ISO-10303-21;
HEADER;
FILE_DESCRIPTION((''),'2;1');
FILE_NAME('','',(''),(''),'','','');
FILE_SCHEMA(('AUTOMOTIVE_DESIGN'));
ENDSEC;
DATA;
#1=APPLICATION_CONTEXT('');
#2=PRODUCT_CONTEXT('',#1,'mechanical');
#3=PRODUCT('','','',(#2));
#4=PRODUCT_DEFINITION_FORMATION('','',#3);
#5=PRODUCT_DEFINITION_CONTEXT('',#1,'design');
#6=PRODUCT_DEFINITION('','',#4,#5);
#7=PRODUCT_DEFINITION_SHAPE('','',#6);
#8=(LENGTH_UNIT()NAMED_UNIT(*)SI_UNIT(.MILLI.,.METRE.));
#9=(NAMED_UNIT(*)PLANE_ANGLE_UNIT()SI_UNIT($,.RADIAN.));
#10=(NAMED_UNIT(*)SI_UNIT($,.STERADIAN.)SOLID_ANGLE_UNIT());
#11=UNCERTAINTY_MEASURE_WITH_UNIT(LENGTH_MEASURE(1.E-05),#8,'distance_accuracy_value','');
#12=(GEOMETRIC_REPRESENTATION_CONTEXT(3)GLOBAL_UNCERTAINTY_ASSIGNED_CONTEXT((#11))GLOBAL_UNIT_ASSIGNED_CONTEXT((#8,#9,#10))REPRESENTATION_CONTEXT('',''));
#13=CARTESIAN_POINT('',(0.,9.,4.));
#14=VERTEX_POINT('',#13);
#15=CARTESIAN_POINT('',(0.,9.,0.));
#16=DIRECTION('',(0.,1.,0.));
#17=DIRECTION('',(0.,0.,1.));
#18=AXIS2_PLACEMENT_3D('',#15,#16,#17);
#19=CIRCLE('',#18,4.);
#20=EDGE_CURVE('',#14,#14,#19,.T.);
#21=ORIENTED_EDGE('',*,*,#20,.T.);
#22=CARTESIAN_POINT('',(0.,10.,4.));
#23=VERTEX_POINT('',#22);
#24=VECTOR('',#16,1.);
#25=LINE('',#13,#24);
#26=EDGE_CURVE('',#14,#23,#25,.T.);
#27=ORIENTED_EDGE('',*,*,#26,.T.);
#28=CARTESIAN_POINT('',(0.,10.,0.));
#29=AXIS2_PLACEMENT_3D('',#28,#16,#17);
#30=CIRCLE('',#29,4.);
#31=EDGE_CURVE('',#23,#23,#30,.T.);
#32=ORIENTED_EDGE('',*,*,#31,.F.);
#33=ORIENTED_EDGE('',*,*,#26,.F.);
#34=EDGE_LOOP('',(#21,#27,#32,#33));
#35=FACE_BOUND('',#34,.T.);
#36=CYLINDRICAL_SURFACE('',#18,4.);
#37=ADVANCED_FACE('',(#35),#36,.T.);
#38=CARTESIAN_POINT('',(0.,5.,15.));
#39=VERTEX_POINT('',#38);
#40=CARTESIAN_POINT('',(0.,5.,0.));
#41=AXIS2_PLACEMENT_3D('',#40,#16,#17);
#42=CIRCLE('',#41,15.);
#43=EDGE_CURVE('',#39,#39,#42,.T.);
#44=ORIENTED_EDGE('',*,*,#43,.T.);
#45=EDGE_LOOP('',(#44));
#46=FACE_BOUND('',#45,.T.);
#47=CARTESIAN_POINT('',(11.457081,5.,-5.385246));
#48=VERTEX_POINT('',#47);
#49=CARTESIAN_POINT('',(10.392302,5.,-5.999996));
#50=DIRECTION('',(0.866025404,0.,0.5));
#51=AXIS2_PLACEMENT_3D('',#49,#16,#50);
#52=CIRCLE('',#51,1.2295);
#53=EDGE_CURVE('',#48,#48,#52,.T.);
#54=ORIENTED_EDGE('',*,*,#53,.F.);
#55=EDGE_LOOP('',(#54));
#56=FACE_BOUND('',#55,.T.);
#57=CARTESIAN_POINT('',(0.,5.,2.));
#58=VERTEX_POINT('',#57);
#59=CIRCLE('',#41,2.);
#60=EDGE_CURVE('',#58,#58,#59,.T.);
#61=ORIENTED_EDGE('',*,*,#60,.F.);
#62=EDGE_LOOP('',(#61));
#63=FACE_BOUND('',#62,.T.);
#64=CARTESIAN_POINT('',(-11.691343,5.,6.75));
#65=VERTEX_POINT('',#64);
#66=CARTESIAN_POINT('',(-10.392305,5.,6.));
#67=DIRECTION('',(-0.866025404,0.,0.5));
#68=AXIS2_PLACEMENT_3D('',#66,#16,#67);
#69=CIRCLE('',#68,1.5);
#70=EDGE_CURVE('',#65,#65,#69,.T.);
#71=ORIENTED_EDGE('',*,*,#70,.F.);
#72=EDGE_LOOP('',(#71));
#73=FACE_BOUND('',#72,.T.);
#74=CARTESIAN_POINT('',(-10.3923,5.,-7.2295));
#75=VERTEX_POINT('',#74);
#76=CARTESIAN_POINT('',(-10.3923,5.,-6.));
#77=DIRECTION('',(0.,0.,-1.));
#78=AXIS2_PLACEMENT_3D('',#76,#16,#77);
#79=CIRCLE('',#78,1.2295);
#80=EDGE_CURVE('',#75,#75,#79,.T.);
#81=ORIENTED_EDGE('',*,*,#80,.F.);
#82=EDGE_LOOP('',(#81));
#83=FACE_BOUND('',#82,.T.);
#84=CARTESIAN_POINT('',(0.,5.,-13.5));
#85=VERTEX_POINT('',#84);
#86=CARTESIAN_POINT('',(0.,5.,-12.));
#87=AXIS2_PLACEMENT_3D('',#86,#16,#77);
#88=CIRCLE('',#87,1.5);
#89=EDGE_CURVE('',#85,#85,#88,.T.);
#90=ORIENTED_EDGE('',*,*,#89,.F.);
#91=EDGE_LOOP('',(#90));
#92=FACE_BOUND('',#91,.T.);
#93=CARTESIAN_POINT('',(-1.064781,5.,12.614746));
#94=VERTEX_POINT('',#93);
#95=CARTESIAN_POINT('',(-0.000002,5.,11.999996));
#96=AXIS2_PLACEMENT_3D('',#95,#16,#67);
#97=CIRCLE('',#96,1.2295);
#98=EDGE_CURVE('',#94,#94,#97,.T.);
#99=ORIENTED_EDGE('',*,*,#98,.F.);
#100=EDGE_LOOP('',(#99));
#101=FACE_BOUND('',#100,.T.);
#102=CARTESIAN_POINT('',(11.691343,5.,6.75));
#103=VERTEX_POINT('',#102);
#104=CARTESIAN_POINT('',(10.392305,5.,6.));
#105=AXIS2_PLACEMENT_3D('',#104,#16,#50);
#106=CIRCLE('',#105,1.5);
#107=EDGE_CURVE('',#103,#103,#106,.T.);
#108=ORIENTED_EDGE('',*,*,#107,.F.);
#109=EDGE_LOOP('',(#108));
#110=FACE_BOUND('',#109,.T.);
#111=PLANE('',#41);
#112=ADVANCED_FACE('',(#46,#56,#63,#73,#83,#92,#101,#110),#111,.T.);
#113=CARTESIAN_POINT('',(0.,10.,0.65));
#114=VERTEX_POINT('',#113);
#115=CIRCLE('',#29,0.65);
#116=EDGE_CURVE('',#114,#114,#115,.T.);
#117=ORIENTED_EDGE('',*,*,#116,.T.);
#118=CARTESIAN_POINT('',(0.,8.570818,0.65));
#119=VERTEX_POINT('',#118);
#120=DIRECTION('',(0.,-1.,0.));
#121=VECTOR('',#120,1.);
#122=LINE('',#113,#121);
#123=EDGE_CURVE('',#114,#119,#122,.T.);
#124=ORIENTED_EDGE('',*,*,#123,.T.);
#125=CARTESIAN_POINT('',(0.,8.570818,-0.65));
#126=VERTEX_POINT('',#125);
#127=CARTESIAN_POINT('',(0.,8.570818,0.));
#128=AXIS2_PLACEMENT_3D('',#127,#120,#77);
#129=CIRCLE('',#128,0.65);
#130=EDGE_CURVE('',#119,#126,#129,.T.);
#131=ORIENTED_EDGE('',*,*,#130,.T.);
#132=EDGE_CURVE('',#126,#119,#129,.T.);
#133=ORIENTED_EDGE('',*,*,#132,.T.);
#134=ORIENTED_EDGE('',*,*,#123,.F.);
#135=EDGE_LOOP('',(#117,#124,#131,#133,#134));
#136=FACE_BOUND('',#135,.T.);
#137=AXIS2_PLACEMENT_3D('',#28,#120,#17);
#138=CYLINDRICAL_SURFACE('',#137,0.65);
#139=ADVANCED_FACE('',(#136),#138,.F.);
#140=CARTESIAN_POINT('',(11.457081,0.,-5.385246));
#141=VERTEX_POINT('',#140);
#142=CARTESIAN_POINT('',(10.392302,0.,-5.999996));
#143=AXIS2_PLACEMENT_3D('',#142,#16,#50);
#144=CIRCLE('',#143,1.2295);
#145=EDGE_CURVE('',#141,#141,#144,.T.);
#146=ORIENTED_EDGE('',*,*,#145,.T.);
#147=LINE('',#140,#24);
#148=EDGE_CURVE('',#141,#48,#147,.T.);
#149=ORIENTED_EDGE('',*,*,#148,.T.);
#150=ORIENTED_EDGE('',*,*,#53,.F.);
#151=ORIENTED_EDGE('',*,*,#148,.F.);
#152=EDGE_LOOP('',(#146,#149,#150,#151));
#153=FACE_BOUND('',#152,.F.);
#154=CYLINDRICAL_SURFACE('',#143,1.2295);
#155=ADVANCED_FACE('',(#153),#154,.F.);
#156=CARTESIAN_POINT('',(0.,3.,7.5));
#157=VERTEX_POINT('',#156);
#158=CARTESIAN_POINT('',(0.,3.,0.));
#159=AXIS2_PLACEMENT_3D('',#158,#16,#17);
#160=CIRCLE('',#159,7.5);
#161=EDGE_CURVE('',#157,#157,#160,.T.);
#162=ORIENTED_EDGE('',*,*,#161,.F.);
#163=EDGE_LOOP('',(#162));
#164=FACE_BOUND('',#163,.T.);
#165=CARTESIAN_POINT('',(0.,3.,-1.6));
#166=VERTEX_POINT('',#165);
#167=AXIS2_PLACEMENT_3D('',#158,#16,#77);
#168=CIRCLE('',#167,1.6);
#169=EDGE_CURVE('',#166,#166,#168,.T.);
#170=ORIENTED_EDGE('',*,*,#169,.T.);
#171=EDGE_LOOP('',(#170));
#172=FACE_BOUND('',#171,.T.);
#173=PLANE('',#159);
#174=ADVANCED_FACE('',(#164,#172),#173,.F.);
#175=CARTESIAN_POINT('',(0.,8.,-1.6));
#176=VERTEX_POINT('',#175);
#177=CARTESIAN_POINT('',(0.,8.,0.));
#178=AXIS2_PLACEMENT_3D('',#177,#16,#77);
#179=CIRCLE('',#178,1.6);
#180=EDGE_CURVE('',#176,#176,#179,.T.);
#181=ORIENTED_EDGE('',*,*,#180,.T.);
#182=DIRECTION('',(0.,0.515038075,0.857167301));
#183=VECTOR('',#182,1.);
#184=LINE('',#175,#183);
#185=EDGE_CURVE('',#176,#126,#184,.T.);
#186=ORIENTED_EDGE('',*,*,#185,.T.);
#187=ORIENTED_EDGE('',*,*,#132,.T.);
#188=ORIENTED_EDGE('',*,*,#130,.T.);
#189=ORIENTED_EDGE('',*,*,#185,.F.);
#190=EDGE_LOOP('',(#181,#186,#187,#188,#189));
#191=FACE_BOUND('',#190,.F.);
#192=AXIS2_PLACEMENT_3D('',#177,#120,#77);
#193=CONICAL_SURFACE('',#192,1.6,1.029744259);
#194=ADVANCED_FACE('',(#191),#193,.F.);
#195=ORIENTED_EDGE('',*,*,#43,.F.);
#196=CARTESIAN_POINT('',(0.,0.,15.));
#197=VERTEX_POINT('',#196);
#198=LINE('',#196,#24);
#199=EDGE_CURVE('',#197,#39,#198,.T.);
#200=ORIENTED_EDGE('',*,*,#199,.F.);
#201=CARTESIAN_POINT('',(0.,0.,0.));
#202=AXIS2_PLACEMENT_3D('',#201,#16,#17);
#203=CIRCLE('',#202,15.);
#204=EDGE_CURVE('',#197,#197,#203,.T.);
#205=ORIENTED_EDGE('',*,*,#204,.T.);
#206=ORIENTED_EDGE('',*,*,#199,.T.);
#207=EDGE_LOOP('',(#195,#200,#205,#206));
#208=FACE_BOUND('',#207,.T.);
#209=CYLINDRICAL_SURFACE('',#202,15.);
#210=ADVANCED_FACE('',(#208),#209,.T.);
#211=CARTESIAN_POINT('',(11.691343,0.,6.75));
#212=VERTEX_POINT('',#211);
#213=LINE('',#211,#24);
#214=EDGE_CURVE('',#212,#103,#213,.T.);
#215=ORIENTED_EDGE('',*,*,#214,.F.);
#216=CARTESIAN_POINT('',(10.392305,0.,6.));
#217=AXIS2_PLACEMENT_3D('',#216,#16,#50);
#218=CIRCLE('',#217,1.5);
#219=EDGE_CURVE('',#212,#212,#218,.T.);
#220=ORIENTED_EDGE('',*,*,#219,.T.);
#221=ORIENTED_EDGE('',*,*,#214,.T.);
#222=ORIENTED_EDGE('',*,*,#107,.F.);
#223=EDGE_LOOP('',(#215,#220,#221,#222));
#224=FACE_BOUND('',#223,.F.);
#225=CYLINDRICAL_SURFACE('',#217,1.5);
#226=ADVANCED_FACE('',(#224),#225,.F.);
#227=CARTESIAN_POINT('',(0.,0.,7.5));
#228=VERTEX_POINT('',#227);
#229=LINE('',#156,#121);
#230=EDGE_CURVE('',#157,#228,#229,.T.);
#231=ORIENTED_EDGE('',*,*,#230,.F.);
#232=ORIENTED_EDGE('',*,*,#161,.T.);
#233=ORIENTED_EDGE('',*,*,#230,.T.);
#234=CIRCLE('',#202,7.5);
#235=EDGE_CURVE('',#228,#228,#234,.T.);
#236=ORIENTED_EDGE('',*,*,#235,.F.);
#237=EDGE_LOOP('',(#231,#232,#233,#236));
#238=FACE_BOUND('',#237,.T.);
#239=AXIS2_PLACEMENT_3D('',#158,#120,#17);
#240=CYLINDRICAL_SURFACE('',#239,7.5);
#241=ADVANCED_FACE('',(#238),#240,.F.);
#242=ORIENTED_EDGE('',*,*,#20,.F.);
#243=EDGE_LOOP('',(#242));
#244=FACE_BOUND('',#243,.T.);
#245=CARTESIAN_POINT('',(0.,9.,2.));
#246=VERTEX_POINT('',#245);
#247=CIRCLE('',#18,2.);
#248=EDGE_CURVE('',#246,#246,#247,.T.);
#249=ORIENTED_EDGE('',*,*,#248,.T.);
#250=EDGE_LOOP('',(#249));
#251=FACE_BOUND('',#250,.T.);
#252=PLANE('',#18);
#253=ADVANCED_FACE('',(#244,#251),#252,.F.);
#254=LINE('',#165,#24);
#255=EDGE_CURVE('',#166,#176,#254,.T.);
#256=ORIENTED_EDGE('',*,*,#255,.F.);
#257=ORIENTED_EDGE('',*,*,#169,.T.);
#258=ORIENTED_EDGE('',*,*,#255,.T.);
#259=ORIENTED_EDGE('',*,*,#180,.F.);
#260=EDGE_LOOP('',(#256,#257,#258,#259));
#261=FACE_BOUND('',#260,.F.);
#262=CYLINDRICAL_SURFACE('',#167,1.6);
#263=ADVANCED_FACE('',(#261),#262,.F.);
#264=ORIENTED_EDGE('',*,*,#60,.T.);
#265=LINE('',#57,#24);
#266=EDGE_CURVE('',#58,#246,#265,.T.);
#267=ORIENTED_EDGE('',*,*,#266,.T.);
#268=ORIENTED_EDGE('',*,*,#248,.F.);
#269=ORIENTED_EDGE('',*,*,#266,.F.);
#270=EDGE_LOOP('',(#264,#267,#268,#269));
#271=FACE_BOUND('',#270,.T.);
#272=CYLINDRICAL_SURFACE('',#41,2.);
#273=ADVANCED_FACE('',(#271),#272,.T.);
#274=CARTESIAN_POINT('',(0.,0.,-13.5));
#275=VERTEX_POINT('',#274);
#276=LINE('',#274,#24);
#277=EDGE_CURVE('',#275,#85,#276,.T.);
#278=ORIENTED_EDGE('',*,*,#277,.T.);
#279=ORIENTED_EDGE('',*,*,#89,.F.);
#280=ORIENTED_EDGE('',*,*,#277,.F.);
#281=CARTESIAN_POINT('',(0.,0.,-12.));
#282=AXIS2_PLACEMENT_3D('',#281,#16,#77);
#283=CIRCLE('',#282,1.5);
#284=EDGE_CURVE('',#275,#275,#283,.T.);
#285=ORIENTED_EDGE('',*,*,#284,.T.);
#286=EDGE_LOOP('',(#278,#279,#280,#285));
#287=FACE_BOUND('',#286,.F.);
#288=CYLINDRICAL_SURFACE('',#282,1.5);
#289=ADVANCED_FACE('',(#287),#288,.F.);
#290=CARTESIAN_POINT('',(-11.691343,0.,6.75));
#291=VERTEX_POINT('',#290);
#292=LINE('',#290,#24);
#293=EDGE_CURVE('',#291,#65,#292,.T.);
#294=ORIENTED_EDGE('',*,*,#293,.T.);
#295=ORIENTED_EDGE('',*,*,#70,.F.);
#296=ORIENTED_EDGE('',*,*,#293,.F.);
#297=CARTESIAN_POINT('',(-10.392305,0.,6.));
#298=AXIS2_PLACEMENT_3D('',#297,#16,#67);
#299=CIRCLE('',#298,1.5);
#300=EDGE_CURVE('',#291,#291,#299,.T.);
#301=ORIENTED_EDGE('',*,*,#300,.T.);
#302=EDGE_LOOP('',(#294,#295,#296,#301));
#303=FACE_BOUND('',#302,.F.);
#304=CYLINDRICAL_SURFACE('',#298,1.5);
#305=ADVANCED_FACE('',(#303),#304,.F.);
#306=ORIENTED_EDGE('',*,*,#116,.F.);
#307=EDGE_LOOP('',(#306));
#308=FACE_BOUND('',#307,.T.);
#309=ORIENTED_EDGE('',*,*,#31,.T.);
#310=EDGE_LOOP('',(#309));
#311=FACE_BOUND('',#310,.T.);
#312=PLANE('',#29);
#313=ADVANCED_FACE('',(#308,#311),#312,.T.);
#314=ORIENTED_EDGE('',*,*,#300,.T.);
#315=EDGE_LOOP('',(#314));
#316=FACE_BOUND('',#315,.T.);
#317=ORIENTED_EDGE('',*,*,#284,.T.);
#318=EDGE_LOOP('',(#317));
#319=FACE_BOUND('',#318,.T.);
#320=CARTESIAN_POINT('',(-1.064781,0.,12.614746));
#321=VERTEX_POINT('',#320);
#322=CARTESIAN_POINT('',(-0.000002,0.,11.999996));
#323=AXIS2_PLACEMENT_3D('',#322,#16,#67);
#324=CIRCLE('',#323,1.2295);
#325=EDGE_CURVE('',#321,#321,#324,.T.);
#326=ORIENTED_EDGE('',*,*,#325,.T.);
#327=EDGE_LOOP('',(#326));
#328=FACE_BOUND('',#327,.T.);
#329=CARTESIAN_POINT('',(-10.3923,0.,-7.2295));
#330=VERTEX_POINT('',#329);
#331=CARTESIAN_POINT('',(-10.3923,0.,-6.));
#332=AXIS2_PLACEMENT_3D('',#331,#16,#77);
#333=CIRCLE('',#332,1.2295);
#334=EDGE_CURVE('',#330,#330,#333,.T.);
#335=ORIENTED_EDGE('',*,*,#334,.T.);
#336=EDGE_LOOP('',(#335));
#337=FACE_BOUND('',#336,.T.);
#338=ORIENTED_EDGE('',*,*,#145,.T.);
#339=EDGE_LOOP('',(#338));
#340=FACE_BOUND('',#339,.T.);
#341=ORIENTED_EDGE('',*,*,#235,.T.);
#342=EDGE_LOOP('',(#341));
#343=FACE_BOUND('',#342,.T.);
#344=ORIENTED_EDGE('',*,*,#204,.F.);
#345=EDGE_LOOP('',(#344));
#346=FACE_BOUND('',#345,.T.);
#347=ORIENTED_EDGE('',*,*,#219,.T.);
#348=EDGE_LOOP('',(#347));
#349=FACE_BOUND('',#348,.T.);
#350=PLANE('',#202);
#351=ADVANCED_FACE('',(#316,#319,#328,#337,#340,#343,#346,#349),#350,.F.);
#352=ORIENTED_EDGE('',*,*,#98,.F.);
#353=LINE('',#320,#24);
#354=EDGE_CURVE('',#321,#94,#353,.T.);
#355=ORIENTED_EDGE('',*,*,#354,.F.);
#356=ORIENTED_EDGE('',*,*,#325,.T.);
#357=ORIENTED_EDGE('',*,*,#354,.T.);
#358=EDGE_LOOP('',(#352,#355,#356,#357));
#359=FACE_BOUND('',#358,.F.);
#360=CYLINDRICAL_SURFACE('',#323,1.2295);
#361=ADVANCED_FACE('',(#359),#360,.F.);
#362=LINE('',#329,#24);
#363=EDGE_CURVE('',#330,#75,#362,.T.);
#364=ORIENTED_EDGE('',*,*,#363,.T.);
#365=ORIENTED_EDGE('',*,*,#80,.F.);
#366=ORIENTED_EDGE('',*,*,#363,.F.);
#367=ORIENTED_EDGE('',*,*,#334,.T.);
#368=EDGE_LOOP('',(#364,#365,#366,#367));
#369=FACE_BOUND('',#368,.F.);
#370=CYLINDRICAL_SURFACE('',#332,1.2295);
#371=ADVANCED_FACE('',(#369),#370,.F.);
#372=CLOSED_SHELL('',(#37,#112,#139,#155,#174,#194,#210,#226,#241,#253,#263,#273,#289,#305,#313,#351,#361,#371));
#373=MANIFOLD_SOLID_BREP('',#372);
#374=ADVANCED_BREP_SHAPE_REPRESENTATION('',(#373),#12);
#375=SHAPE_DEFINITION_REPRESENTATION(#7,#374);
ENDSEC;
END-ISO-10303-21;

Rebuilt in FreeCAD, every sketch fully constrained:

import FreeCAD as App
import Part
import Sketcher
from FreeCAD import Vector
Q = App.Units.Quantity

doc = App.newDocument("Part")
body = doc.addObject("PartDesign::Body", "Body")

sketch1 = doc.addObject("Sketcher::SketchObject", "Sketch")
body.addObject(sketch1)
sketch1.AttachmentSupport = (doc.YZ_Plane, [""])
sketch1.MapMode = "FlatFace"
sketch1.addGeometry([
    Part.LineSegment(Vector(0, 15, 0), Vector(0, 7.5, 0)),
    Part.LineSegment(Vector(0, 7.5, 0), Vector(3, 7.5, 0)),
    Part.LineSegment(Vector(3, 7.5, 0), Vector(3, 0.65, 0)),
    Part.LineSegment(Vector(3, 0.65, 0), Vector(10, 0.65, 0)),
    Part.LineSegment(Vector(10, 0.65, 0), Vector(10, 4, 0)),
    Part.LineSegment(Vector(10, 4, 0), Vector(9, 4, 0)),
    Part.LineSegment(Vector(9, 4, 0), Vector(9, 2, 0)),
    Part.LineSegment(Vector(9, 2, 0), Vector(5, 2, 0)),
    Part.LineSegment(Vector(5, 2, 0), Vector(5, 15, 0)),
    Part.LineSegment(Vector(5, 15, 0), Vector(0, 15, 0)),
], False)
sketch1.addConstraint([
    Sketcher.Constraint("Coincident", 0, 2, 1, 1),
    Sketcher.Constraint("Coincident", 1, 2, 2, 1),
    Sketcher.Constraint("Coincident", 2, 2, 3, 1),
    Sketcher.Constraint("Coincident", 3, 2, 4, 1),
    Sketcher.Constraint("Coincident", 4, 2, 5, 1),
    Sketcher.Constraint("Coincident", 5, 2, 6, 1),
    Sketcher.Constraint("Coincident", 6, 2, 7, 1),
    Sketcher.Constraint("Coincident", 7, 2, 8, 1),
    Sketcher.Constraint("Coincident", 8, 2, 9, 1),
    Sketcher.Constraint("Coincident", 9, 2, 0, 1),
    Sketcher.Constraint("Vertical", 0),
    Sketcher.Constraint("Horizontal", 1),
    Sketcher.Constraint("Vertical", 2),
    Sketcher.Constraint("Horizontal", 3),
    Sketcher.Constraint("Vertical", 4),
    Sketcher.Constraint("Horizontal", 5),
    Sketcher.Constraint("Vertical", 6),
    Sketcher.Constraint("Horizontal", 7),
    Sketcher.Constraint("Vertical", 8),
    Sketcher.Constraint("Horizontal", 9),
    Sketcher.Constraint("PointOnObject", 0, 2, -2),
    Sketcher.Constraint("DistanceX", 1, 1, 1, 2, Q("3 mm")),
    Sketcher.Constraint("DistanceX", 5, 2, 5, 1, Q("1 mm")),
    Sketcher.Constraint("DistanceX", 7, 2, 7, 1, Q("4 mm")),
    Sketcher.Constraint("DistanceX", 9, 2, 9, 1, Q("5 mm")),
    Sketcher.Constraint("DistanceY", 6, 2, 6, 1, Q("2 mm")),
    Sketcher.Constraint("DistanceY", 0, 2, 0, 1, Q("7.5 mm")),
    Sketcher.Constraint("DistanceY", -1, 1, 4, 2, Q("4 mm")),
    Sketcher.Constraint("DistanceY", -1, 1, 8, 2, Q("15 mm")),
    Sketcher.Constraint("DistanceY", -1, 1, 2, 2, Q("0.65 mm")),
])
revolution = doc.addObject("PartDesign::Revolution", "Revolution")
body.addObject(revolution)
revolution.Profile = sketch1
revolution.ReferenceAxis = (sketch1, ["H_Axis"])
revolution.Angle = 360

sketch2 = doc.addObject("Sketcher::SketchObject", "Sketch001")
body.addObject(sketch2)
sketch2.AttachmentSupport = (doc.XZ_Plane, [""])
sketch2.MapMode = "FlatFace"
sketch2.addGeometry(Part.Circle(Vector(0, -12, 0), Vector(0, 0, 1), 1.5), False)
sketch2.addConstraint([
    Sketcher.Constraint("PointOnObject", 0, 3, -2),
    Sketcher.Constraint("Diameter", 0, Q("3 mm")),
    Sketcher.Constraint("DistanceY", 0, 3, -1, 1, Q("12 mm")),
])
doc.recompute()
hole = doc.addObject("PartDesign::Hole", "Hole")
body.addObject(hole)
hole.Profile = sketch2
hole.ThreadType = "None"
hole.Diameter = 3
hole.DepthType = "ThroughAll"
doc.recompute()

polarpattern = doc.addObject("PartDesign::PolarPattern", "PolarPattern")
body.addObject(polarpattern)
polarpattern.Originals = [hole]
polarpattern.Axis = (doc.Y_Axis, [""])
polarpattern.Angle = 360
polarpattern.Occurrences = 3
body.Tip = polarpattern

sketch3 = doc.addObject("Sketcher::SketchObject", "Sketch002")
body.addObject(sketch3)
sketch3.AttachmentSupport = (doc.XZ_Plane, [""])
sketch3.MapMode = "FlatFace"
sketch3.addGeometry(Part.Circle(Vector(-10.3923, -6, 0), Vector(0, 0, 1), 1.2295), False)
sketch3.addConstraint([
    Sketcher.Constraint("Diameter", 0, Q("2.459 mm")),
    Sketcher.Constraint("DistanceY", 0, 3, -1, 1, Q("6 mm")),
    Sketcher.Constraint("DistanceX", 0, 3, -1, 1, Q("10.3923 mm")),
])
doc.recompute()
hole2 = doc.addObject("PartDesign::Hole", "Hole001")
body.addObject(hole2)
hole2.Profile = sketch3
hole2.ThreadType = "None"
hole2.Diameter = 2.459
hole2.DepthType = "ThroughAll"
doc.recompute()

polarpattern2 = doc.addObject("PartDesign::PolarPattern", "PolarPattern001")
body.addObject(polarpattern2)
polarpattern2.Originals = [hole2]
polarpattern2.Axis = (doc.Y_Axis, [""])
polarpattern2.Angle = 360
polarpattern2.Occurrences = 3
body.Tip = polarpattern2

sketch4 = doc.addObject("Sketcher::SketchObject", "Sketch003")
body.addObject(sketch4)
sketch4.AttachmentSupport = (doc.XZ_Plane, [""])
sketch4.MapMode = "FlatFace"
sketch4.AttachmentOffset = App.Placement(Vector(0, 0, -3), App.Rotation())
sketch4.addGeometry(Part.Circle(Vector(0, 0, 0), Vector(0, 0, 1), 1.6), False)
sketch4.addConstraint([
    Sketcher.Constraint("Coincident", 0, 3, -1, 1),
    Sketcher.Constraint("Diameter", 0, Q("3.2 mm")),
])
doc.recompute()
hole3 = doc.addObject("PartDesign::Hole", "Hole002")
body.addObject(hole3)
hole3.Profile = sketch4
hole3.ThreadType = "None"
hole3.Diameter = 3.2
hole3.DepthType = "Dimension"
hole3.Depth = 5
hole3.DrillPoint = "Angled"
hole3.DrillPointAngle = 118

doc.recompute()
